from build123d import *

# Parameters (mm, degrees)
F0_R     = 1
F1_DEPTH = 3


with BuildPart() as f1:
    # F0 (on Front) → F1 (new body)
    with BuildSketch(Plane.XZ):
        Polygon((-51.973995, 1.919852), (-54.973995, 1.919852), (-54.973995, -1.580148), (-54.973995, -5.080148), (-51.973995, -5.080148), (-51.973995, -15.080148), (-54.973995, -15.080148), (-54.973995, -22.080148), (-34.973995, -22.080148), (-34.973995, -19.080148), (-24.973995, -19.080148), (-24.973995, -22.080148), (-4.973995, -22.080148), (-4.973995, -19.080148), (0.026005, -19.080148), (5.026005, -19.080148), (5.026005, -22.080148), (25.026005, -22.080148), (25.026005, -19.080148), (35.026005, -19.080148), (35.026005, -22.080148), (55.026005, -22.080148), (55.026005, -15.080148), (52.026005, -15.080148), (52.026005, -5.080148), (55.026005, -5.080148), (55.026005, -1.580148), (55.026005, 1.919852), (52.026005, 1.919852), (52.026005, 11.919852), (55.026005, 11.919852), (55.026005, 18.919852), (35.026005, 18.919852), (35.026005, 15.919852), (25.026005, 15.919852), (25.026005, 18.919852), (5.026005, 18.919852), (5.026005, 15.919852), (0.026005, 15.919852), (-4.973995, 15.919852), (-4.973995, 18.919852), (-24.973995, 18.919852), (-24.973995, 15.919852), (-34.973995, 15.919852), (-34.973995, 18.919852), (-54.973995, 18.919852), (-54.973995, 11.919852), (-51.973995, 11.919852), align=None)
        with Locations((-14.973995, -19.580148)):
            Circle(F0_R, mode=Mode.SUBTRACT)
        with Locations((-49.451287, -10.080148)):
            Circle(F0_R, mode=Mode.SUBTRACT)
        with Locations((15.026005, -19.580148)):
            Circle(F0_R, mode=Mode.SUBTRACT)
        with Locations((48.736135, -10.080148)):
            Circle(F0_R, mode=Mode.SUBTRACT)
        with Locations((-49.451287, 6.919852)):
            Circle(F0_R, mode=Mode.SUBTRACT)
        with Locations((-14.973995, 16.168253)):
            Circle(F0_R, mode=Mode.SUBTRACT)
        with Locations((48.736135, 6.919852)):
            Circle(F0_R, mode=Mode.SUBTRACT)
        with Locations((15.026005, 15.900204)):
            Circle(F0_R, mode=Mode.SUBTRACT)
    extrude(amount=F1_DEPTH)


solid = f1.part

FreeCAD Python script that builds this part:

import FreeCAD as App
import Part
import Sketcher
from FreeCAD import Vector
Q = App.Units.Quantity


def add_polygon(sketch, points):
    """Adds a closed chain of lines whose ends are joined by coincident constraints."""
    first, n = sketch.GeometryCount, len(points)
    for a, b in zip(points, points[1:] + points[:1]):
        sketch.addGeometry(Part.LineSegment(App.Vector(*a, 0), App.Vector(*b, 0)), False)
    for i in range(n):
        sketch.addConstraint(Sketcher.Constraint("Coincident", first + i, 2, first + (i + 1) % n, 1))

doc = App.newDocument("Part")
params = doc.addObject("Spreadsheet::Sheet", "Params")
for row, (alias, value) in enumerate([
    ("sketch1_diameter", "2 mm"),
    ("sketch1_width", "3 mm"),
    ("sketch1_width2", "20 mm"),
    ("sketch1_width3", "10 mm"),
    ("sketch1_height", "7 mm"),
    ("pad1_length", "3 mm"),
], start=1):
    params.set(f"A{row}", alias)
    params.set(f"B{row}", "=" + value)
    params.setAlias(f"B{row}", alias)

body = doc.addObject("PartDesign::Body", "Body")

sketch1 = body.newObject("Sketcher::SketchObject", "Sketch")
sketch1.AttachmentSupport = (doc.getObject("XZ_Plane"), [""])
sketch1.MapMode = "FlatFace"
add_polygon(sketch1, [(-52, 1.9), (-55, 1.9), (-55, -5.1), (-52, -5.1), (-52, -15.1), (-55, -15.1), (-55, -22.1), (-35, -22.1), (-35, -19.1), (-25, -19.1), (-25, -22.1), (-5, -22.1), (-5, -19.1), (5, -19.1), (5, -22.1), (25, -22.1), (25, -19.1), (35, -19.1), (35, -22.1), (55, -22.1), (55, -15.1), (52, -15.1), (52, -5.1), (55, -5.1), (55, 1.9), (52, 1.9), (52, 11.9), (55, 11.9), (55, 18.9), (35, 18.9), (35, 15.9), (25, 15.9), (25, 18.9), (5, 18.9), (5, 15.9), (-5, 15.9), (-5, 18.9), (-25, 18.9), (-25, 15.9), (-35, 15.9), (-35, 18.9), (-55, 18.9), (-55, 11.9), (-52, 11.9)])
sketch1.addGeometry(Part.Circle(Vector(-15, -19.6, 0), Vector(0, 0, 1), 1), False)
sketch1.addGeometry(Part.Circle(Vector(-49.5, -10.1, 0), Vector(0, 0, 1), 1), False)
sketch1.addGeometry(Part.Circle(Vector(15, -19.6, 0), Vector(0, 0, 1), 1), False)
sketch1.addGeometry(Part.Circle(Vector(48.7, -10.1, 0), Vector(0, 0, 1), 1), False)
sketch1.addGeometry(Part.Circle(Vector(-49.5, 6.9, 0), Vector(0, 0, 1), 1), False)
sketch1.addGeometry(Part.Circle(Vector(-15, 16.2, 0), Vector(0, 0, 1), 1), False)
sketch1.addGeometry(Part.Circle(Vector(48.7, 6.9, 0), Vector(0, 0, 1), 1), False)
sketch1.addGeometry(Part.Circle(Vector(15, 15.9, 0), Vector(0, 0, 1), 1), False)
sketch1.addConstraint([
    Sketcher.Constraint("Horizontal", 0),
    Sketcher.Constraint("Vertical", 1),
    Sketcher.Constraint("Horizontal", 2),
    Sketcher.Constraint("Vertical", 3),
    Sketcher.Constraint("Horizontal", 4),
    Sketcher.Constraint("Vertical", 5),
    Sketcher.Constraint("Horizontal", 6),
    Sketcher.Constraint("Vertical", 7),
    Sketcher.Constraint("Horizontal", 8),
    Sketcher.Constraint("Vertical", 9),
    Sketcher.Constraint("Horizontal", 10),
    Sketcher.Constraint("Vertical", 11),
    Sketcher.Constraint("Horizontal", 12),
    Sketcher.Constraint("Vertical", 13),
    Sketcher.Constraint("Horizontal", 14),
    Sketcher.Constraint("Vertical", 15),
    Sketcher.Constraint("Horizontal", 16),
    Sketcher.Constraint("Vertical", 17),
    Sketcher.Constraint("Horizontal", 18),
    Sketcher.Constraint("Vertical", 19),
    Sketcher.Constraint("Horizontal", 20),
    Sketcher.Constraint("Vertical", 21),
    Sketcher.Constraint("Horizontal", 22),
    Sketcher.Constraint("Vertical", 23),
    Sketcher.Constraint("Horizontal", 24),
    Sketcher.Constraint("Vertical", 25),
    Sketcher.Constraint("Horizontal", 26),
    Sketcher.Constraint("Vertical", 27),
    Sketcher.Constraint("Horizontal", 28),
    Sketcher.Constraint("Vertical", 29),
    Sketcher.Constraint("Horizontal", 30),
    Sketcher.Constraint("Vertical", 31),
    Sketcher.Constraint("Horizontal", 32),
    Sketcher.Constraint("Vertical", 33),
    Sketcher.Constraint("Horizontal", 34),
    Sketcher.Constraint("Vertical", 35),
    Sketcher.Constraint("Horizontal", 36),
    Sketcher.Constraint("Vertical", 37),
    Sketcher.Constraint("Horizontal", 38),
    Sketcher.Constraint("Vertical", 39),
    Sketcher.Constraint("Horizontal", 40),
    Sketcher.Constraint("Vertical", 41),
    Sketcher.Constraint("Horizontal", 42),
    Sketcher.Constraint("Vertical", 43),
    Sketcher.Constraint("Equal", 44, 45),
    Sketcher.Constraint("Equal", 45, 46),
    Sketcher.Constraint("Equal", 46, 47),
    Sketcher.Constraint("Equal", 47, 48),
    Sketcher.Constraint("Equal", 48, 49),
    Sketcher.Constraint("Equal", 49, 50),
    Sketcher.Constraint("Equal", 50, 51),
    Sketcher.Constraint("Horizontal", 44, 3, 46, 3),
    Sketcher.Constraint("Horizontal", 45, 3, 47, 3),
    Sketcher.Constraint("Horizontal", 48, 3, 50, 3),
    Sketcher.Constraint("Horizontal", 6, 2, 9, 2),
    Sketcher.Constraint("Horizontal", 8, 2, 11, 2),
    Sketcher.Constraint("Horizontal", 10, 2, 13, 2),
    Sketcher.Constraint("Horizontal", 12, 2, 15, 2),
    Sketcher.Constraint("Horizontal", 14, 2, 17, 2),
    Sketcher.Constraint("Horizontal", 4, 2, 19, 2),
    Sketcher.Constraint("Horizontal", 2, 2, 21, 2),
    Sketcher.Constraint("Horizontal", 0, 2, 23, 2),
    Sketcher.Constraint("Horizontal", 28, 2, 31, 2),
    Sketcher.Constraint("Horizontal", 30, 2, 33, 2),
    Sketcher.Constraint("Horizontal", 32, 2, 35, 2),
    Sketcher.Constraint("Horizontal", 34, 2, 37, 2),
    Sketcher.Constraint("Horizontal", 36, 2, 39, 2),
    Sketcher.Constraint("Horizontal", 26, 2, 41, 2),
    Sketcher.Constraint("Vertical", 45, 3, 48, 3),
    Sketcher.Constraint("Vertical", 44, 3, 49, 3),
    Sketcher.Constraint("Vertical", 47, 3, 50, 3),
    Sketcher.Constraint("Vertical", 46, 3, 51, 3),
    Sketcher.Constraint("Vertical", 1, 2, 4, 2),
    Sketcher.Constraint("Vertical", 19, 2, 22, 2),
    Sketcher.Constraint("Vertical", 21, 2, 24, 2),
    Sketcher.Constraint("Vertical", 23, 2, 26, 2),
    Sketcher.Constraint("Vertical", 17, 2, 28, 2),
    Sketcher.Constraint("Vertical", 15, 2, 30, 2),
    Sketcher.Constraint("Vertical", 13, 2, 32, 2),
    Sketcher.Constraint("Vertical", 11, 2, 34, 2),
    Sketcher.Constraint("Vertical", 9, 2, 36, 2),
    Sketcher.Constraint("Vertical", 7, 2, 38, 2),
    Sketcher.Constraint("Vertical", 5, 2, 40, 2),
    Sketcher.Constraint("Vertical", 3, 2, 42, 2),
    Sketcher.Constraint("Equal", 6, 10),
    Sketcher.Constraint("Equal", 8, 12),
    Sketcher.Constraint("Equal", 10, 14),
    Sketcher.Constraint("Equal", 12, 16),
    Sketcher.Constraint("Equal", 14, 18),
    Sketcher.Constraint("Equal", 4, 20),
    Sketcher.Constraint("Equal", 38, 3),
    Sketcher.Constraint("Equal", 1, 5),
    Sketcher.Constraint("Equal", 42, 7),
    Sketcher.Constraint("Equal", 21, 25),
    Sketcher.Constraint("Equal", 23, 27),
    Sketcher.Constraint("Equal", 17, 29),
    Sketcher.Constraint("Diameter", 44, Q("2 mm")),
    Sketcher.Constraint("DistanceX", 0, 2, 0, 1, Q("3 mm")),
    Sketcher.Constraint("DistanceX", 6, 1, 6, 2, Q("20 mm")),
    Sketcher.Constraint("DistanceX", 8, 1, 8, 2, Q("10 mm")),
    Sketcher.Constraint("DistanceY", 1, 2, 1, 1, Q("7 mm")),
    Sketcher.Constraint("DistanceX", 44, 3, 46, 3, Q("30 mm")),
    Sketcher.Constraint("DistanceY", 45, 3, 48, 3, Q("17 mm")),
    Sketcher.Constraint("DistanceY", 0, 2, 48, 3, Q("5 mm")),
    Sketcher.Constraint("DistanceX", 0, 2, 49, 3, Q("40 mm")),
    Sketcher.Constraint("DistanceY", 44, 3, 45, 3, Q("9.5 mm")),
    Sketcher.Constraint("DistanceY", 48, 3, 49, 3, Q("9.248401 mm")),
    Sketcher.Constraint("DistanceY", 44, 3, -1, 1, Q("19.580148 mm")),
    Sketcher.Constraint("DistanceX", 45, 3, 44, 3, Q("34.477292 mm")),
    Sketcher.Constraint("DistanceX", 46, 3, 47, 3, Q("33.71013 mm")),
    Sketcher.Constraint("DistanceY", 51, 3, 49, 3, Q("0.268049 mm")),
    Sketcher.Constraint("DistanceX", 44, 3, -1, 1, Q("14.973995 mm")),
])
sketch1.setExpression("Constraints[140]", "Params.sketch1_diameter")
sketch1.setExpression("Constraints[141]", "Params.sketch1_width")
sketch1.setExpression("Constraints[142]", "Params.sketch1_width2")
sketch1.setExpression("Constraints[143]", "Params.sketch1_width3")
sketch1.setExpression("Constraints[144]", "Params.sketch1_height")
pad1 = body.newObject("PartDesign::Pad", "Pad")
pad1.Profile = sketch1
pad1.setExpression("Length", "Params.pad1_length")

doc.recompute()
